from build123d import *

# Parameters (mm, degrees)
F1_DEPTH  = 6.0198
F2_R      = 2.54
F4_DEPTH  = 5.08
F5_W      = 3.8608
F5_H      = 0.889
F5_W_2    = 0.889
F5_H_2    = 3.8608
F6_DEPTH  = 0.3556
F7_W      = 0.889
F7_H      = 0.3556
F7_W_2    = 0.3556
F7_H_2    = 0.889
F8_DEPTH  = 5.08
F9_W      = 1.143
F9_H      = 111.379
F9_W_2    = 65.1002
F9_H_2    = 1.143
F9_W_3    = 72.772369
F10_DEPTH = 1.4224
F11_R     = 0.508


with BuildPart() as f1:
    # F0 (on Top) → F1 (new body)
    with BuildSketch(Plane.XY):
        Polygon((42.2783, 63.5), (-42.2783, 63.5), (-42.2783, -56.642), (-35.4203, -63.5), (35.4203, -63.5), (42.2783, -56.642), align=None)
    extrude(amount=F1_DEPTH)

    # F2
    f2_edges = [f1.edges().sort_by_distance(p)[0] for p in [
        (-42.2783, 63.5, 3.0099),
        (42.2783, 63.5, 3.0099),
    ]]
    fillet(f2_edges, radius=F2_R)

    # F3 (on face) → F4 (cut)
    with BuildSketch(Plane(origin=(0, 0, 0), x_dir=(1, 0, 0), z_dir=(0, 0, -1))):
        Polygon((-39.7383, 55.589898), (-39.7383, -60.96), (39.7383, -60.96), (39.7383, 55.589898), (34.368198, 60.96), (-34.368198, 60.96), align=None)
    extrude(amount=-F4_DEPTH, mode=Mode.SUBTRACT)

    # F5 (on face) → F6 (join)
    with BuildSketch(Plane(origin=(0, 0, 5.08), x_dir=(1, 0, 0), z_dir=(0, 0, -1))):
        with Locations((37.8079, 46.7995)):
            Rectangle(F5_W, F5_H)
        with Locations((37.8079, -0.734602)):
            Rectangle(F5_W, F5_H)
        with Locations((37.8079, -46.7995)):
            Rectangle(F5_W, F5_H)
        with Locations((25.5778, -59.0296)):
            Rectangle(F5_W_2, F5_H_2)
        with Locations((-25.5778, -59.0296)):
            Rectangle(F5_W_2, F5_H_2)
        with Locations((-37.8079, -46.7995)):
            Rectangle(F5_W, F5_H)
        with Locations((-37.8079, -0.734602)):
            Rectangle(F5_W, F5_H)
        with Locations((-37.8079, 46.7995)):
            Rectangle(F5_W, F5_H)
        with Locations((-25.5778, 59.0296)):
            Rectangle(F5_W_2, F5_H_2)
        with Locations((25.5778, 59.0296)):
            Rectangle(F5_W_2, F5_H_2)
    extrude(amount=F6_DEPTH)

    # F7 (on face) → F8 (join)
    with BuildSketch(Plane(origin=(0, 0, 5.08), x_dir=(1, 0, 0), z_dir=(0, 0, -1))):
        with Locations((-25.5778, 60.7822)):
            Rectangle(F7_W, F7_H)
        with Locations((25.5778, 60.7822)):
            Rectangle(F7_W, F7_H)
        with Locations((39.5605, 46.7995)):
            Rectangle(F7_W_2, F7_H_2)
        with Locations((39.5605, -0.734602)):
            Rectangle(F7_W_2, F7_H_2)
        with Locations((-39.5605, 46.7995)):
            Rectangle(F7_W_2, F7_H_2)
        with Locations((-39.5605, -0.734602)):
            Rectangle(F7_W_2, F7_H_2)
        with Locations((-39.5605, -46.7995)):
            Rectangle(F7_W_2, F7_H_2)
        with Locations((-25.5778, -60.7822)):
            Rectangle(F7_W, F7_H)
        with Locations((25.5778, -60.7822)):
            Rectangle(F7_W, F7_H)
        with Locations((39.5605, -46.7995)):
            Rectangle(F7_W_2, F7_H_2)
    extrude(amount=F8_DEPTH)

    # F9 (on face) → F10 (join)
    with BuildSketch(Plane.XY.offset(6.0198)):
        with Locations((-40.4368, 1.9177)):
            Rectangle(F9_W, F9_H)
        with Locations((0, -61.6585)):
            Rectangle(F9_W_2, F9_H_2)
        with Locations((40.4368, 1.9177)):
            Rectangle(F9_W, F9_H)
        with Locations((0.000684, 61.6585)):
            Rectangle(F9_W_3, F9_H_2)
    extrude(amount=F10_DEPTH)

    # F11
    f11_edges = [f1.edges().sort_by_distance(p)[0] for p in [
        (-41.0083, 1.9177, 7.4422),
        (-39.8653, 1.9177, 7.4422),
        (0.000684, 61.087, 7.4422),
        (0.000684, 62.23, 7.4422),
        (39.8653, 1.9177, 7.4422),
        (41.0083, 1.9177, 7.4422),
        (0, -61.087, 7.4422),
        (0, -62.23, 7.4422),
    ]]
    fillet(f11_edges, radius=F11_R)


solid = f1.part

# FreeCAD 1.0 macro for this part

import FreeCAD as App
import Part
import Sketcher

V = App.Vector
Q = App.Units.Quantity


def edges_at(feature, points):
    """Names of the edges that pass closest to the given points."""
    edges = feature.Shape.Edges
    near = lambda p: min(range(len(edges)), key=lambda i: edges[i].distToShape(Part.Vertex(*p))[0])
    return sorted({f"Edge{near(p) + 1}" for p in points})


def add_polygon(sketch, points):
    """Adds a closed chain of lines whose ends are joined by coincident constraints."""
    first, n = sketch.GeometryCount, len(points)
    for a, b in zip(points, points[1:] + points[:1]):
        sketch.addGeometry(Part.LineSegment(App.Vector(*a, 0), App.Vector(*b, 0)), False)
    for i in range(n):
        sketch.addConstraint(Sketcher.Constraint("Coincident", first + i, 2, first + (i + 1) % n, 1))

doc = App.newDocument("Part")
body = doc.addObject("PartDesign::Body", "Body")

# Sketch on XY plane
sketch1 = body.newObject("Sketcher::SketchObject", "Sketch")
sketch1.AttachmentSupport = (doc.getObject("XY_Plane"), [""])
sketch1.MapMode = "FlatFace"
add_polygon(sketch1, [(42, 64), (-42, 64), (-42, -57), (-35, -64), (35, -64), (42, -57)])  # lines 0-5
sketch1.addConstraint(Sketcher.Constraint("Horizontal", 0))
sketch1.addConstraint(Sketcher.Constraint("Vertical", 1))
sketch1.addConstraint(Sketcher.Constraint("Horizontal", 3))
sketch1.addConstraint(Sketcher.Constraint("Vertical", 5))
sketch1.addConstraint(Sketcher.Constraint("Symmetric", 1, 2, 4, 2, -2))
sketch1.addConstraint(Sketcher.Constraint("Perpendicular", 2, 4))
sketch1.addConstraint(Sketcher.Constraint("Equal", 2, 4))
sketch1.addConstraint(Sketcher.Constraint("DistanceY", 2, 2, 0, 2, Q("5 in")))
sketch1.addConstraint(Sketcher.Constraint("DistanceY", 1, 2, 1, 1, Q("4.73 in")))
sketch1.addConstraint(Sketcher.Constraint("DistanceY", -1, 1, 0, 2, Q("2.5 in")))
sketch1.addConstraint(Sketcher.Constraint("DistanceX", 0, 2, 0, 1, Q("3.329 in")))
pad1 = body.newObject("PartDesign::Pad", "Pad")
pad1.Profile = sketch1
pad1.Length = Q("0.237 in")
doc.recompute()

fillet = body.newObject("PartDesign::Fillet", "Fillet")
fillet.Base = (pad1, edges_at(pad1, [(-42.278, 63.5, 3.01), (42.278, 63.5, 3.01)]))
fillet.Radius = Q("0.1 in")

# Sketch on XY plane
sketch2 = body.newObject("Sketcher::SketchObject", "Sketch001")
sketch2.AttachmentSupport = (doc.getObject("XY_Plane"), [""])
sketch2.MapMode = "FlatFace"
add_polygon(sketch2, [(-40, -56), (-40, 61), (40, 61), (40, -56), (34, -61), (-34, -61)])  # lines 0-5
sketch2.addConstraint(Sketcher.Constraint("Vertical", 0))
sketch2.addConstraint(Sketcher.Constraint("Horizontal", 1))
sketch2.addConstraint(Sketcher.Constraint("Vertical", 2))
sketch2.addConstraint(Sketcher.Constraint("Horizontal", 4))
sketch2.addConstraint(Sketcher.Constraint("Symmetric", 2, 2, 5, 2, -2))
sketch2.addConstraint(Sketcher.Constraint("Perpendicular", 3, 5))
sketch2.addConstraint(Sketcher.Constraint("Equal", 3, 5))
sketch2.addConstraint(Sketcher.Constraint("DistanceY", -1, 1, 0, 2, Q("2.4 in")))
sketch2.addConstraint(Sketcher.Constraint("DistanceY", 3, 2, -1, 1, Q("2.4 in")))
sketch2.addConstraint(Sketcher.Constraint("DistanceX", 1, 1, 1, 2, Q("3.129 in")))
sketch2.addConstraint(Sketcher.Constraint("DistanceY", 0, 1, 0, 2, Q("116.549898 mm")))
pocket1 = body.newObject("PartDesign::Pocket", "Pocket")
pocket1.Profile = sketch2
pocket1.Length = Q("0.2 in")
pocket1.Reversed = True

# Sketch on XY plane
sketch3 = body.newObject("Sketcher::SketchObject", "Sketch002")
sketch3.AttachmentSupport = (doc.getObject("XY_Plane"), [""])
sketch3.MapMode = "FlatFace"
sketch3.AttachmentOffset = App.Placement(V(0, 0, 0.2 * 25.4), App.Rotation())
add_polygon(sketch3, [(35.9, -47.2), (35.9, -46.4), (39.7, -46.4), (39.7, -47.2)])  # lines 0-3
add_polygon(sketch3, [(35.9, 0.3), (35.9, 1.2), (39.7, 1.2), (39.7, 0.3)])  # lines 4-7
add_polygon(sketch3, [(35.9, 46.4), (35.9, 47.2), (39.7, 47.2), (39.7, 46.4)])  # lines 8-11
add_polygon(sketch3, [(25.1, 57.1), (25.1, 61), (26, 61), (26, 57.1)])  # lines 12-15
add_polygon(sketch3, [(-26, 57.1), (-26, 61), (-25.1, 61), (-25.1, 57.1)])  # lines 16-19
add_polygon(sketch3, [(-39.7, 46.4), (-39.7, 47.2), (-35.9, 47.2), (-35.9, 46.4)])  # lines 20-23
add_polygon(sketch3, [(-39.7, 0.3), (-39.7, 1.2), (-35.9, 1.2), (-35.9, 0.3)])  # lines 24-27
add_polygon(sketch3, [(-39.7, -47.2), (-39.7, -46.4), (-35.9, -46.4), (-35.9, -47.2)])  # lines 28-31
add_polygon(sketch3, [(-26, -61), (-26, -57.1), (-25.1, -57.1), (-25.1, -61)])  # lines 32-35
add_polygon(sketch3, [(25.1, -61), (25.1, -57.1), (26, -57.1), (26, -61)])  # lines 36-39
sketch3.addConstraint(Sketcher.Constraint("Vertical", 0))
sketch3.addConstraint(Sketcher.Constraint("Horizontal", 1))
sketch3.addConstraint(Sketcher.Constraint("Vertical", 2))
sketch3.addConstraint(Sketcher.Constraint("Horizontal", 3))
sketch3.addConstraint(Sketcher.Constraint("Vertical", 4))
sketch3.addConstraint(Sketcher.Constraint("Horizontal", 5))
sketch3.addConstraint(Sketcher.Constraint("Vertical", 6))
sketch3.addConstraint(Sketcher.Constraint("Horizontal", 7))
sketch3.addConstraint(Sketcher.Constraint("Vertical", 8))
sketch3.addConstraint(Sketcher.Constraint("Horizontal", 9))
sketch3.addConstraint(Sketcher.Constraint("Vertical", 10))
sketch3.addConstraint(Sketcher.Constraint("Horizontal", 11))
sketch3.addConstraint(Sketcher.Constraint("Vertical", 12))
sketch3.addConstraint(Sketcher.Constraint("Horizontal", 13))
sketch3.addConstraint(Sketcher.Constraint("Vertical", 14))
sketch3.addConstraint(Sketcher.Constraint("Horizontal", 15))
sketch3.addConstraint(Sketcher.Constraint("Vertical", 16))
sketch3.addConstraint(Sketcher.Constraint("Horizontal", 17))
sketch3.addConstraint(Sketcher.Constraint("Vertical", 18))
sketch3.addConstraint(Sketcher.Constraint("Horizontal", 19))
sketch3.addConstraint(Sketcher.Constraint("Vertical", 20))
sketch3.addConstraint(Sketcher.Constraint("Horizontal", 21))
sketch3.addConstraint(Sketcher.Constraint("Vertical", 22))
sketch3.addConstraint(Sketcher.Constraint("Horizontal", 23))
sketch3.addConstraint(Sketcher.Constraint("Vertical", 24))
sketch3.addConstraint(Sketcher.Constraint("Horizontal", 25))
sketch3.addConstraint(Sketcher.Constraint("Vertical", 26))
sketch3.addConstraint(Sketcher.Constraint("Horizontal", 27))
sketch3.addConstraint(Sketcher.Constraint("Vertical", 28))
sketch3.addConstraint(Sketcher.Constraint("Horizontal", 29))
sketch3.addConstraint(Sketcher.Constraint("Vertical", 30))
sketch3.addConstraint(Sketcher.Constraint("Horizontal", 31))
sketch3.addConstraint(Sketcher.Constraint("Vertical", 32))
sketch3.addConstraint(Sketcher.Constraint("Horizontal", 33))
sketch3.addConstraint(Sketcher.Constraint("Vertical", 34))
sketch3.addConstraint(Sketcher.Constraint("Horizontal", 35))
sketch3.addConstraint(Sketcher.Constraint("Vertical", 36))
sketch3.addConstraint(Sketcher.Constraint("Horizontal", 37))
sketch3.addConstraint(Sketcher.Constraint("Vertical", 38))
sketch3.addConstraint(Sketcher.Constraint("Horizontal", 39))
sketch3.addConstraint(Sketcher.Constraint("Symmetric", 2, 2, 20, 2, -1, 1))
sketch3.addConstraint(Sketcher.Constraint("Symmetric", 0, 2, 22, 2, -1, 1))
sketch3.addConstraint(Sketcher.Constraint("Symmetric", 10, 2, 28, 2, -1, 1))
sketch3.addConstraint(Sketcher.Constraint("Symmetric", 8, 2, 30, 2, -1, 1))
sketch3.addConstraint(Sketcher.Constraint("Symmetric", 14, 2, 32, 2, -1, 1))
sketch3.addConstraint(Sketcher.Constraint("Symmetric", 12, 2, 34, 2, -1, 1))
sketch3.addConstraint(Sketcher.Constraint("Symmetric", 18, 2, 36, 2, -1, 1))
sketch3.addConstraint(Sketcher.Constraint("Symmetric", 16, 2, 38, 2, -1, 1))
sketch3.addConstraint(Sketcher.Constraint("Symmetric", 13, 2, 16, 2, -2))
sketch3.addConstraint(Sketcher.Constraint("Symmetric", 15, 2, 18, 2, -2))
sketch3.addConstraint(Sketcher.Constraint("Symmetric", 9, 2, 20, 2, -2))
sketch3.addConstraint(Sketcher.Constraint("Symmetric", 11, 2, 22, 2, -2))
sketch3.addConstraint(Sketcher.Constraint("Symmetric", 5, 2, 24, 2, -2))
sketch3.addConstraint(Sketcher.Constraint("Symmetric", 7, 2, 26, 2, -2))
sketch3.addConstraint(Sketcher.Constraint("Vertical", 3, 2, 4, 2))
sketch3.addConstraint(Sketcher.Constraint("Vertical", 2, 2, 5, 2))
sketch3.addConstraint(Sketcher.Constraint("Equal", 39, 0))
sketch3.addConstraint(Sketcher.Constraint("Equal", 2, 4))
sketch3.addConstraint(Sketcher.Constraint("Equal", 31, 12))
sketch3.addConstraint(Sketcher.Constraint("DistanceY", -1, 1, 12, 2, Q("2.4 in")))
sketch3.addConstraint(Sketcher.Constraint("DistanceX", 1, 1, 1, 2, Q("0.152 in")))
sketch3.addConstraint(Sketcher.Constraint("DistanceX", 13, 1, 13, 2, Q("0.035 in")))
sketch3.addConstraint(Sketcher.Constraint("DistanceY", 2, 2, -1, 1, Q("1.86 in")))
sketch3.addConstraint(Sketcher.Constraint("DistanceX", 13, 2, 9, 2, Q("0.54 in")))
sketch3.addConstraint(Sketcher.Constraint("DistanceX", 16, 2, 12, 2, Q("2.014 in")))
sketch3.addConstraint(Sketcher.Constraint("DistanceY", 0, 2, 4, 2, Q("47.534102 mm")))
pad2 = body.newObject("PartDesign::Pad", "Pad001")
pad2.Profile = sketch3
pad2.Length = Q("0.014 in")
pad2.Reversed = True

# Sketch on XY plane
sketch4 = body.newObject("Sketcher::SketchObject", "Sketch003")
sketch4.AttachmentSupport = (doc.getObject("XY_Plane"), [""])
sketch4.MapMode = "FlatFace"
sketch4.AttachmentOffset = App.Placement(V(0, 0, 0.2 * 25.4), App.Rotation())
add_polygon(sketch4, [(-26.02, -60.96), (-26.02, -60.6), (-25.13, -60.6), (-25.13, -60.96)])  # lines 0-3
add_polygon(sketch4, [(25.13, -60.96), (25.13, -60.6), (26.02, -60.6), (26.02, -60.96)])  # lines 4-7
add_polygon(sketch4, [(39.38, -47.24), (39.38, -46.35), (39.74, -46.35), (39.74, -47.24)])  # lines 8-11
add_polygon(sketch4, [(39.38, 0.29), (39.38, 1.18), (39.74, 1.18), (39.74, 0.29)])  # lines 12-15
add_polygon(sketch4, [(-39.74, -47.24), (-39.74, -46.35), (-39.38, -46.35), (-39.38, -47.24)])  # lines 16-19
add_polygon(sketch4, [(-39.74, 0.29), (-39.74, 1.18), (-39.38, 1.18), (-39.38, 0.29)])  # lines 20-23
add_polygon(sketch4, [(-39.74, 46.35), (-39.74, 47.24), (-39.38, 47.24), (-39.38, 46.35)])  # lines 24-27
add_polygon(sketch4, [(-26.02, 60.6), (-26.02, 60.96), (-25.13, 60.96), (-25.13, 60.6)])  # lines 28-31
add_polygon(sketch4, [(25.13, 60.6), (25.13, 60.96), (26.02, 60.96), (26.02, 60.6)])  # lines 32-35
add_polygon(sketch4, [(39.38, 46.35), (39.38, 47.24), (39.74, 47.24), (39.74, 46.35)])  # lines 36-39
sketch4.addConstraint(Sketcher.Constraint("Vertical", 0))
sketch4.addConstraint(Sketcher.Constraint("Horizontal", 1))
sketch4.addConstraint(Sketcher.Constraint("Vertical", 2))
sketch4.addConstraint(Sketcher.Constraint("Horizontal", 3))
sketch4.addConstraint(Sketcher.Constraint("Vertical", 4))
sketch4.addConstraint(Sketcher.Constraint("Horizontal", 5))
sketch4.addConstraint(Sketcher.Constraint("Vertical", 6))
sketch4.addConstraint(Sketcher.Constraint("Horizontal", 7))
sketch4.addConstraint(Sketcher.Constraint("Vertical", 8))
sketch4.addConstraint(Sketcher.Constraint("Horizontal", 9))
sketch4.addConstraint(Sketcher.Constraint("Vertical", 10))
sketch4.addConstraint(Sketcher.Constraint("Horizontal", 11))
sketch4.addConstraint(Sketcher.Constraint("Vertical", 12))
sketch4.addConstraint(Sketcher.Constraint("Horizontal", 13))
sketch4.addConstraint(Sketcher.Constraint("Vertical", 14))
sketch4.addConstraint(Sketcher.Constraint("Horizontal", 15))
sketch4.addConstraint(Sketcher.Constraint("Vertical", 16))
sketch4.addConstraint(Sketcher.Constraint("Horizontal", 17))
sketch4.addConstraint(Sketcher.Constraint("Vertical", 18))
sketch4.addConstraint(Sketcher.Constraint("Horizontal", 19))
sketch4.addConstraint(Sketcher.Constraint("Vertical", 20))
sketch4.addConstraint(Sketcher.Constraint("Horizontal", 21))
sketch4.addConstraint(Sketcher.Constraint("Vertical", 22))
sketch4.addConstraint(Sketcher.Constraint("Horizontal", 23))
sketch4.addConstraint(Sketcher.Constraint("Vertical", 24))
sketch4.addConstraint(Sketcher.Constraint("Horizontal", 25))
sketch4.addConstraint(Sketcher.Constraint("Vertical", 26))
sketch4.addConstraint(Sketcher.Constraint("Horizontal", 27))
sketch4.addConstraint(Sketcher.Constraint("Vertical", 28))
sketch4.addConstraint(Sketcher.Constraint("Horizontal", 29))
sketch4.addConstraint(Sketcher.Constraint("Vertical", 30))
sketch4.addConstraint(Sketcher.Constraint("Horizontal", 31))
sketch4.addConstraint(Sketcher.Constraint("Vertical", 32))
sketch4.addConstraint(Sketcher.Constraint("Horizontal", 33))
sketch4.addConstraint(Sketcher.Constraint("Vertical", 34))
sketch4.addConstraint(Sketcher.Constraint("Horizontal", 35))
sketch4.addConstraint(Sketcher.Constraint("Vertical", 36))
sketch4.addConstraint(Sketcher.Constraint("Horizontal", 37))
sketch4.addConstraint(Sketcher.Constraint("Vertical", 38))
sketch4.addConstraint(Sketcher.Constraint("Horizontal", 39))
sketch4.addConstraint(Sketcher.Constraint("Symmetric", 10, 2, 24, 2, -1, 1))
sketch4.addConstraint(Sketcher.Constraint("Symmetric", 8, 2, 26, 2, -1, 1))
sketch4.addConstraint(Sketcher.Constraint("Symmetric", 6, 2, 28, 2, -1, 1))
sketch4.addConstraint(Sketcher.Constraint("Symmetric", 4, 2, 30, 2, -1, 1))
sketch4.addConstraint(Sketcher.Constraint("Symmetric", 2, 2, 32, 2, -1, 1))
sketch4.addConstraint(Sketcher.Constraint("Symmetric", 0, 2, 34, 2, -1, 1))
sketch4.addConstraint(Sketcher.Constraint("Symmetric", 18, 2, 36, 2, -1, 1))
sketch4.addConstraint(Sketcher.Constraint("Symmetric", 16, 2, 38, 2, -1, 1))
sketch4.addConstraint(Sketcher.Constraint("Symmetric", 1, 2, 4, 2, -2))
sketch4.addConstraint(Sketcher.Constraint("Symmetric", 3, 2, 6, 2, -2))
sketch4.addConstraint(Sketcher.Constraint("Symmetric", 9, 2, 16, 2, -2))
sketch4.addConstraint(Sketcher.Constraint("Symmetric", 11, 2, 18, 2, -2))
sketch4.addConstraint(Sketcher.Constraint("Symmetric", 13, 2, 20, 2, -2))
sketch4.addConstraint(Sketcher.Constraint("Symmetric", 15, 2, 22, 2, -2))
sketch4.addConstraint(Sketcher.Constraint("Vertical", 11, 2, 12, 2))
sketch4.addConstraint(Sketcher.Constraint("Vertical", 10, 2, 13, 2))
sketch4.addConstraint(Sketcher.Constraint("Equal", 39, 0))
sketch4.addConstraint(Sketcher.Constraint("Equal", 35, 8))
sketch4.addConstraint(Sketcher.Constraint("Equal", 10, 12))
sketch4.addConstraint(Sketcher.Constraint("DistanceY", 2, 2, -1, 1, Q("2.4 in")))
sketch4.addConstraint(Sketcher.Constraint("DistanceX", 1, 1, 1, 2, Q("0.035 in")))
sketch4.addConstraint(Sketcher.Constraint("DistanceX", 9, 1, 9, 2, Q("0.014 in")))
sketch4.addConstraint(Sketcher.Constraint("DistanceY", 10, 2, -1, 1, Q("1.86 in")))
sketch4.addConstraint(Sketcher.Constraint("DistanceX", 1, 2, 8, 2, Q("2.54 in")))
sketch4.addConstraint(Sketcher.Constraint("DistanceX", 5, 2, 9, 2, Q("0.54 in")))
sketch4.addConstraint(Sketcher.Constraint("DistanceY", 8, 2, 12, 2, Q("47.534102 mm")))
pad3 = body.newObject("PartDesign::Pad", "Pad002")
pad3.Profile = sketch4
pad3.Length = Q("0.2 in")
pad3.Reversed = True

# Sketch on XY plane
sketch5 = body.newObject("Sketcher::SketchObject", "Sketch004")
sketch5.AttachmentSupport = (doc.getObject("XY_Plane"), [""])
sketch5.MapMode = "FlatFace"
sketch5.AttachmentOffset = App.Placement(V(0, 0, 0.237 * 25.4), App.Rotation())
add_polygon(sketch5, [(-41, 57.6), (-41, -53.8), (-39.9, -53.8), (-39.9, 57.6)])  # lines 0-3
add_polygon(sketch5, [(-32.6, -61.1), (-32.6, -62.2), (32.6, -62.2), (32.6, -61.1)])  # lines 4-7
add_polygon(sketch5, [(39.9, 57.6), (39.9, -53.8), (41, -53.8), (41, 57.6)])  # lines 8-11
add_polygon(sketch5, [(-36.4, 62.2), (-36.4, 61.1), (36.4, 61.1), (36.4, 62.2)])  # lines 12-15
sketch5.addConstraint(Sketcher.Constraint("Vertical", 0))
sketch5.addConstraint(Sketcher.Constraint("Horizontal", 1))
sketch5.addConstraint(Sketcher.Constraint("Vertical", 2))
sketch5.addConstraint(Sketcher.Constraint("Horizontal", 3))
sketch5.addConstraint(Sketcher.Constraint("Vertical", 4))
sketch5.addConstraint(Sketcher.Constraint("Horizontal", 5))
sketch5.addConstraint(Sketcher.Constraint("Vertical", 6))
sketch5.addConstraint(Sketcher.Constraint("Horizontal", 7))
sketch5.addConstraint(Sketcher.Constraint("Vertical", 8))
sketch5.addConstraint(Sketcher.Constraint("Horizontal", 9))
sketch5.addConstraint(Sketcher.Constraint("Vertical", 10))
sketch5.addConstraint(Sketcher.Constraint("Horizontal", 11))
sketch5.addConstraint(Sketcher.Constraint("Vertical", 12))
sketch5.addConstraint(Sketcher.Constraint("Horizontal", 13))
sketch5.addConstraint(Sketcher.Constraint("Vertical", 14))
sketch5.addConstraint(Sketcher.Constraint("Horizontal", 15))
sketch5.addConstraint(Sketcher.Constraint("Symmetric", 1, 2, 8, 2, -2))
sketch5.addConstraint(Sketcher.Constraint("Symmetric", 3, 2, 10, 2, -2))
sketch5.addConstraint(Sketcher.Constraint("Equal", 11, 4))
sketch5.addConstraint(Sketcher.Constraint("Equal", 6, 12))
sketch5.addConstraint(Sketcher.Constraint("DistanceX", 1, 1, 1, 2, Q("0.045 in")))
sketch5.addConstraint(Sketcher.Constraint("DistanceX", 5, 1, 5, 2, Q("2.563 in")))
sketch5.addConstraint(Sketcher.Constraint("DistanceY", 0, 2, 0, 1, Q("4.385 in")))
sketch5.addConstraint(Sketcher.Constraint("DistanceY", 4, 2, -1, 1, Q("2.45 in")))
sketch5.addConstraint(Sketcher.Constraint("DistanceY", -1, 1, 14, 2, Q("2.45 in")))
sketch5.addConstraint(Sketcher.Constraint("DistanceY", 0, 2, -1, 1, Q("2.117 in")))
sketch5.addConstraint(Sketcher.Constraint("DistanceX", 1, 2, 4, 2, Q("0.288 in")))
sketch5.addConstraint(Sketcher.Constraint("DistanceX", 6, 2, 8, 2, Q("0.288 in")))
sketch5.addConstraint(Sketcher.Constraint("DistanceX", 2, 2, 12, 2, Q("0.137 in")))
sketch5.addConstraint(Sketcher.Constraint("DistanceX", 13, 1, 13, 2, Q("72.772369 mm")))
pad4 = body.newObject("PartDesign::Pad", "Pad003")
pad4.Profile = sketch5
pad4.Length = Q("0.056 in")
doc.recompute()

fillet2 = body.newObject("PartDesign::Fillet", "Fillet001")
fillet2.Base = (pad4, edges_at(pad4, [
    (-41.008, 1.918, 7.442),
    (-39.865, 1.918, 7.442),
    (0.001, 61.087, 7.442),
    (0.001, 62.23, 7.442),
    (39.865, 1.918, 7.442),
    (41.008, 1.918, 7.442),
    (0, -61.087, 7.442),
    (0, -62.23, 7.442),
]))
fillet2.Radius = Q("0.02 in")

doc.recompute()
